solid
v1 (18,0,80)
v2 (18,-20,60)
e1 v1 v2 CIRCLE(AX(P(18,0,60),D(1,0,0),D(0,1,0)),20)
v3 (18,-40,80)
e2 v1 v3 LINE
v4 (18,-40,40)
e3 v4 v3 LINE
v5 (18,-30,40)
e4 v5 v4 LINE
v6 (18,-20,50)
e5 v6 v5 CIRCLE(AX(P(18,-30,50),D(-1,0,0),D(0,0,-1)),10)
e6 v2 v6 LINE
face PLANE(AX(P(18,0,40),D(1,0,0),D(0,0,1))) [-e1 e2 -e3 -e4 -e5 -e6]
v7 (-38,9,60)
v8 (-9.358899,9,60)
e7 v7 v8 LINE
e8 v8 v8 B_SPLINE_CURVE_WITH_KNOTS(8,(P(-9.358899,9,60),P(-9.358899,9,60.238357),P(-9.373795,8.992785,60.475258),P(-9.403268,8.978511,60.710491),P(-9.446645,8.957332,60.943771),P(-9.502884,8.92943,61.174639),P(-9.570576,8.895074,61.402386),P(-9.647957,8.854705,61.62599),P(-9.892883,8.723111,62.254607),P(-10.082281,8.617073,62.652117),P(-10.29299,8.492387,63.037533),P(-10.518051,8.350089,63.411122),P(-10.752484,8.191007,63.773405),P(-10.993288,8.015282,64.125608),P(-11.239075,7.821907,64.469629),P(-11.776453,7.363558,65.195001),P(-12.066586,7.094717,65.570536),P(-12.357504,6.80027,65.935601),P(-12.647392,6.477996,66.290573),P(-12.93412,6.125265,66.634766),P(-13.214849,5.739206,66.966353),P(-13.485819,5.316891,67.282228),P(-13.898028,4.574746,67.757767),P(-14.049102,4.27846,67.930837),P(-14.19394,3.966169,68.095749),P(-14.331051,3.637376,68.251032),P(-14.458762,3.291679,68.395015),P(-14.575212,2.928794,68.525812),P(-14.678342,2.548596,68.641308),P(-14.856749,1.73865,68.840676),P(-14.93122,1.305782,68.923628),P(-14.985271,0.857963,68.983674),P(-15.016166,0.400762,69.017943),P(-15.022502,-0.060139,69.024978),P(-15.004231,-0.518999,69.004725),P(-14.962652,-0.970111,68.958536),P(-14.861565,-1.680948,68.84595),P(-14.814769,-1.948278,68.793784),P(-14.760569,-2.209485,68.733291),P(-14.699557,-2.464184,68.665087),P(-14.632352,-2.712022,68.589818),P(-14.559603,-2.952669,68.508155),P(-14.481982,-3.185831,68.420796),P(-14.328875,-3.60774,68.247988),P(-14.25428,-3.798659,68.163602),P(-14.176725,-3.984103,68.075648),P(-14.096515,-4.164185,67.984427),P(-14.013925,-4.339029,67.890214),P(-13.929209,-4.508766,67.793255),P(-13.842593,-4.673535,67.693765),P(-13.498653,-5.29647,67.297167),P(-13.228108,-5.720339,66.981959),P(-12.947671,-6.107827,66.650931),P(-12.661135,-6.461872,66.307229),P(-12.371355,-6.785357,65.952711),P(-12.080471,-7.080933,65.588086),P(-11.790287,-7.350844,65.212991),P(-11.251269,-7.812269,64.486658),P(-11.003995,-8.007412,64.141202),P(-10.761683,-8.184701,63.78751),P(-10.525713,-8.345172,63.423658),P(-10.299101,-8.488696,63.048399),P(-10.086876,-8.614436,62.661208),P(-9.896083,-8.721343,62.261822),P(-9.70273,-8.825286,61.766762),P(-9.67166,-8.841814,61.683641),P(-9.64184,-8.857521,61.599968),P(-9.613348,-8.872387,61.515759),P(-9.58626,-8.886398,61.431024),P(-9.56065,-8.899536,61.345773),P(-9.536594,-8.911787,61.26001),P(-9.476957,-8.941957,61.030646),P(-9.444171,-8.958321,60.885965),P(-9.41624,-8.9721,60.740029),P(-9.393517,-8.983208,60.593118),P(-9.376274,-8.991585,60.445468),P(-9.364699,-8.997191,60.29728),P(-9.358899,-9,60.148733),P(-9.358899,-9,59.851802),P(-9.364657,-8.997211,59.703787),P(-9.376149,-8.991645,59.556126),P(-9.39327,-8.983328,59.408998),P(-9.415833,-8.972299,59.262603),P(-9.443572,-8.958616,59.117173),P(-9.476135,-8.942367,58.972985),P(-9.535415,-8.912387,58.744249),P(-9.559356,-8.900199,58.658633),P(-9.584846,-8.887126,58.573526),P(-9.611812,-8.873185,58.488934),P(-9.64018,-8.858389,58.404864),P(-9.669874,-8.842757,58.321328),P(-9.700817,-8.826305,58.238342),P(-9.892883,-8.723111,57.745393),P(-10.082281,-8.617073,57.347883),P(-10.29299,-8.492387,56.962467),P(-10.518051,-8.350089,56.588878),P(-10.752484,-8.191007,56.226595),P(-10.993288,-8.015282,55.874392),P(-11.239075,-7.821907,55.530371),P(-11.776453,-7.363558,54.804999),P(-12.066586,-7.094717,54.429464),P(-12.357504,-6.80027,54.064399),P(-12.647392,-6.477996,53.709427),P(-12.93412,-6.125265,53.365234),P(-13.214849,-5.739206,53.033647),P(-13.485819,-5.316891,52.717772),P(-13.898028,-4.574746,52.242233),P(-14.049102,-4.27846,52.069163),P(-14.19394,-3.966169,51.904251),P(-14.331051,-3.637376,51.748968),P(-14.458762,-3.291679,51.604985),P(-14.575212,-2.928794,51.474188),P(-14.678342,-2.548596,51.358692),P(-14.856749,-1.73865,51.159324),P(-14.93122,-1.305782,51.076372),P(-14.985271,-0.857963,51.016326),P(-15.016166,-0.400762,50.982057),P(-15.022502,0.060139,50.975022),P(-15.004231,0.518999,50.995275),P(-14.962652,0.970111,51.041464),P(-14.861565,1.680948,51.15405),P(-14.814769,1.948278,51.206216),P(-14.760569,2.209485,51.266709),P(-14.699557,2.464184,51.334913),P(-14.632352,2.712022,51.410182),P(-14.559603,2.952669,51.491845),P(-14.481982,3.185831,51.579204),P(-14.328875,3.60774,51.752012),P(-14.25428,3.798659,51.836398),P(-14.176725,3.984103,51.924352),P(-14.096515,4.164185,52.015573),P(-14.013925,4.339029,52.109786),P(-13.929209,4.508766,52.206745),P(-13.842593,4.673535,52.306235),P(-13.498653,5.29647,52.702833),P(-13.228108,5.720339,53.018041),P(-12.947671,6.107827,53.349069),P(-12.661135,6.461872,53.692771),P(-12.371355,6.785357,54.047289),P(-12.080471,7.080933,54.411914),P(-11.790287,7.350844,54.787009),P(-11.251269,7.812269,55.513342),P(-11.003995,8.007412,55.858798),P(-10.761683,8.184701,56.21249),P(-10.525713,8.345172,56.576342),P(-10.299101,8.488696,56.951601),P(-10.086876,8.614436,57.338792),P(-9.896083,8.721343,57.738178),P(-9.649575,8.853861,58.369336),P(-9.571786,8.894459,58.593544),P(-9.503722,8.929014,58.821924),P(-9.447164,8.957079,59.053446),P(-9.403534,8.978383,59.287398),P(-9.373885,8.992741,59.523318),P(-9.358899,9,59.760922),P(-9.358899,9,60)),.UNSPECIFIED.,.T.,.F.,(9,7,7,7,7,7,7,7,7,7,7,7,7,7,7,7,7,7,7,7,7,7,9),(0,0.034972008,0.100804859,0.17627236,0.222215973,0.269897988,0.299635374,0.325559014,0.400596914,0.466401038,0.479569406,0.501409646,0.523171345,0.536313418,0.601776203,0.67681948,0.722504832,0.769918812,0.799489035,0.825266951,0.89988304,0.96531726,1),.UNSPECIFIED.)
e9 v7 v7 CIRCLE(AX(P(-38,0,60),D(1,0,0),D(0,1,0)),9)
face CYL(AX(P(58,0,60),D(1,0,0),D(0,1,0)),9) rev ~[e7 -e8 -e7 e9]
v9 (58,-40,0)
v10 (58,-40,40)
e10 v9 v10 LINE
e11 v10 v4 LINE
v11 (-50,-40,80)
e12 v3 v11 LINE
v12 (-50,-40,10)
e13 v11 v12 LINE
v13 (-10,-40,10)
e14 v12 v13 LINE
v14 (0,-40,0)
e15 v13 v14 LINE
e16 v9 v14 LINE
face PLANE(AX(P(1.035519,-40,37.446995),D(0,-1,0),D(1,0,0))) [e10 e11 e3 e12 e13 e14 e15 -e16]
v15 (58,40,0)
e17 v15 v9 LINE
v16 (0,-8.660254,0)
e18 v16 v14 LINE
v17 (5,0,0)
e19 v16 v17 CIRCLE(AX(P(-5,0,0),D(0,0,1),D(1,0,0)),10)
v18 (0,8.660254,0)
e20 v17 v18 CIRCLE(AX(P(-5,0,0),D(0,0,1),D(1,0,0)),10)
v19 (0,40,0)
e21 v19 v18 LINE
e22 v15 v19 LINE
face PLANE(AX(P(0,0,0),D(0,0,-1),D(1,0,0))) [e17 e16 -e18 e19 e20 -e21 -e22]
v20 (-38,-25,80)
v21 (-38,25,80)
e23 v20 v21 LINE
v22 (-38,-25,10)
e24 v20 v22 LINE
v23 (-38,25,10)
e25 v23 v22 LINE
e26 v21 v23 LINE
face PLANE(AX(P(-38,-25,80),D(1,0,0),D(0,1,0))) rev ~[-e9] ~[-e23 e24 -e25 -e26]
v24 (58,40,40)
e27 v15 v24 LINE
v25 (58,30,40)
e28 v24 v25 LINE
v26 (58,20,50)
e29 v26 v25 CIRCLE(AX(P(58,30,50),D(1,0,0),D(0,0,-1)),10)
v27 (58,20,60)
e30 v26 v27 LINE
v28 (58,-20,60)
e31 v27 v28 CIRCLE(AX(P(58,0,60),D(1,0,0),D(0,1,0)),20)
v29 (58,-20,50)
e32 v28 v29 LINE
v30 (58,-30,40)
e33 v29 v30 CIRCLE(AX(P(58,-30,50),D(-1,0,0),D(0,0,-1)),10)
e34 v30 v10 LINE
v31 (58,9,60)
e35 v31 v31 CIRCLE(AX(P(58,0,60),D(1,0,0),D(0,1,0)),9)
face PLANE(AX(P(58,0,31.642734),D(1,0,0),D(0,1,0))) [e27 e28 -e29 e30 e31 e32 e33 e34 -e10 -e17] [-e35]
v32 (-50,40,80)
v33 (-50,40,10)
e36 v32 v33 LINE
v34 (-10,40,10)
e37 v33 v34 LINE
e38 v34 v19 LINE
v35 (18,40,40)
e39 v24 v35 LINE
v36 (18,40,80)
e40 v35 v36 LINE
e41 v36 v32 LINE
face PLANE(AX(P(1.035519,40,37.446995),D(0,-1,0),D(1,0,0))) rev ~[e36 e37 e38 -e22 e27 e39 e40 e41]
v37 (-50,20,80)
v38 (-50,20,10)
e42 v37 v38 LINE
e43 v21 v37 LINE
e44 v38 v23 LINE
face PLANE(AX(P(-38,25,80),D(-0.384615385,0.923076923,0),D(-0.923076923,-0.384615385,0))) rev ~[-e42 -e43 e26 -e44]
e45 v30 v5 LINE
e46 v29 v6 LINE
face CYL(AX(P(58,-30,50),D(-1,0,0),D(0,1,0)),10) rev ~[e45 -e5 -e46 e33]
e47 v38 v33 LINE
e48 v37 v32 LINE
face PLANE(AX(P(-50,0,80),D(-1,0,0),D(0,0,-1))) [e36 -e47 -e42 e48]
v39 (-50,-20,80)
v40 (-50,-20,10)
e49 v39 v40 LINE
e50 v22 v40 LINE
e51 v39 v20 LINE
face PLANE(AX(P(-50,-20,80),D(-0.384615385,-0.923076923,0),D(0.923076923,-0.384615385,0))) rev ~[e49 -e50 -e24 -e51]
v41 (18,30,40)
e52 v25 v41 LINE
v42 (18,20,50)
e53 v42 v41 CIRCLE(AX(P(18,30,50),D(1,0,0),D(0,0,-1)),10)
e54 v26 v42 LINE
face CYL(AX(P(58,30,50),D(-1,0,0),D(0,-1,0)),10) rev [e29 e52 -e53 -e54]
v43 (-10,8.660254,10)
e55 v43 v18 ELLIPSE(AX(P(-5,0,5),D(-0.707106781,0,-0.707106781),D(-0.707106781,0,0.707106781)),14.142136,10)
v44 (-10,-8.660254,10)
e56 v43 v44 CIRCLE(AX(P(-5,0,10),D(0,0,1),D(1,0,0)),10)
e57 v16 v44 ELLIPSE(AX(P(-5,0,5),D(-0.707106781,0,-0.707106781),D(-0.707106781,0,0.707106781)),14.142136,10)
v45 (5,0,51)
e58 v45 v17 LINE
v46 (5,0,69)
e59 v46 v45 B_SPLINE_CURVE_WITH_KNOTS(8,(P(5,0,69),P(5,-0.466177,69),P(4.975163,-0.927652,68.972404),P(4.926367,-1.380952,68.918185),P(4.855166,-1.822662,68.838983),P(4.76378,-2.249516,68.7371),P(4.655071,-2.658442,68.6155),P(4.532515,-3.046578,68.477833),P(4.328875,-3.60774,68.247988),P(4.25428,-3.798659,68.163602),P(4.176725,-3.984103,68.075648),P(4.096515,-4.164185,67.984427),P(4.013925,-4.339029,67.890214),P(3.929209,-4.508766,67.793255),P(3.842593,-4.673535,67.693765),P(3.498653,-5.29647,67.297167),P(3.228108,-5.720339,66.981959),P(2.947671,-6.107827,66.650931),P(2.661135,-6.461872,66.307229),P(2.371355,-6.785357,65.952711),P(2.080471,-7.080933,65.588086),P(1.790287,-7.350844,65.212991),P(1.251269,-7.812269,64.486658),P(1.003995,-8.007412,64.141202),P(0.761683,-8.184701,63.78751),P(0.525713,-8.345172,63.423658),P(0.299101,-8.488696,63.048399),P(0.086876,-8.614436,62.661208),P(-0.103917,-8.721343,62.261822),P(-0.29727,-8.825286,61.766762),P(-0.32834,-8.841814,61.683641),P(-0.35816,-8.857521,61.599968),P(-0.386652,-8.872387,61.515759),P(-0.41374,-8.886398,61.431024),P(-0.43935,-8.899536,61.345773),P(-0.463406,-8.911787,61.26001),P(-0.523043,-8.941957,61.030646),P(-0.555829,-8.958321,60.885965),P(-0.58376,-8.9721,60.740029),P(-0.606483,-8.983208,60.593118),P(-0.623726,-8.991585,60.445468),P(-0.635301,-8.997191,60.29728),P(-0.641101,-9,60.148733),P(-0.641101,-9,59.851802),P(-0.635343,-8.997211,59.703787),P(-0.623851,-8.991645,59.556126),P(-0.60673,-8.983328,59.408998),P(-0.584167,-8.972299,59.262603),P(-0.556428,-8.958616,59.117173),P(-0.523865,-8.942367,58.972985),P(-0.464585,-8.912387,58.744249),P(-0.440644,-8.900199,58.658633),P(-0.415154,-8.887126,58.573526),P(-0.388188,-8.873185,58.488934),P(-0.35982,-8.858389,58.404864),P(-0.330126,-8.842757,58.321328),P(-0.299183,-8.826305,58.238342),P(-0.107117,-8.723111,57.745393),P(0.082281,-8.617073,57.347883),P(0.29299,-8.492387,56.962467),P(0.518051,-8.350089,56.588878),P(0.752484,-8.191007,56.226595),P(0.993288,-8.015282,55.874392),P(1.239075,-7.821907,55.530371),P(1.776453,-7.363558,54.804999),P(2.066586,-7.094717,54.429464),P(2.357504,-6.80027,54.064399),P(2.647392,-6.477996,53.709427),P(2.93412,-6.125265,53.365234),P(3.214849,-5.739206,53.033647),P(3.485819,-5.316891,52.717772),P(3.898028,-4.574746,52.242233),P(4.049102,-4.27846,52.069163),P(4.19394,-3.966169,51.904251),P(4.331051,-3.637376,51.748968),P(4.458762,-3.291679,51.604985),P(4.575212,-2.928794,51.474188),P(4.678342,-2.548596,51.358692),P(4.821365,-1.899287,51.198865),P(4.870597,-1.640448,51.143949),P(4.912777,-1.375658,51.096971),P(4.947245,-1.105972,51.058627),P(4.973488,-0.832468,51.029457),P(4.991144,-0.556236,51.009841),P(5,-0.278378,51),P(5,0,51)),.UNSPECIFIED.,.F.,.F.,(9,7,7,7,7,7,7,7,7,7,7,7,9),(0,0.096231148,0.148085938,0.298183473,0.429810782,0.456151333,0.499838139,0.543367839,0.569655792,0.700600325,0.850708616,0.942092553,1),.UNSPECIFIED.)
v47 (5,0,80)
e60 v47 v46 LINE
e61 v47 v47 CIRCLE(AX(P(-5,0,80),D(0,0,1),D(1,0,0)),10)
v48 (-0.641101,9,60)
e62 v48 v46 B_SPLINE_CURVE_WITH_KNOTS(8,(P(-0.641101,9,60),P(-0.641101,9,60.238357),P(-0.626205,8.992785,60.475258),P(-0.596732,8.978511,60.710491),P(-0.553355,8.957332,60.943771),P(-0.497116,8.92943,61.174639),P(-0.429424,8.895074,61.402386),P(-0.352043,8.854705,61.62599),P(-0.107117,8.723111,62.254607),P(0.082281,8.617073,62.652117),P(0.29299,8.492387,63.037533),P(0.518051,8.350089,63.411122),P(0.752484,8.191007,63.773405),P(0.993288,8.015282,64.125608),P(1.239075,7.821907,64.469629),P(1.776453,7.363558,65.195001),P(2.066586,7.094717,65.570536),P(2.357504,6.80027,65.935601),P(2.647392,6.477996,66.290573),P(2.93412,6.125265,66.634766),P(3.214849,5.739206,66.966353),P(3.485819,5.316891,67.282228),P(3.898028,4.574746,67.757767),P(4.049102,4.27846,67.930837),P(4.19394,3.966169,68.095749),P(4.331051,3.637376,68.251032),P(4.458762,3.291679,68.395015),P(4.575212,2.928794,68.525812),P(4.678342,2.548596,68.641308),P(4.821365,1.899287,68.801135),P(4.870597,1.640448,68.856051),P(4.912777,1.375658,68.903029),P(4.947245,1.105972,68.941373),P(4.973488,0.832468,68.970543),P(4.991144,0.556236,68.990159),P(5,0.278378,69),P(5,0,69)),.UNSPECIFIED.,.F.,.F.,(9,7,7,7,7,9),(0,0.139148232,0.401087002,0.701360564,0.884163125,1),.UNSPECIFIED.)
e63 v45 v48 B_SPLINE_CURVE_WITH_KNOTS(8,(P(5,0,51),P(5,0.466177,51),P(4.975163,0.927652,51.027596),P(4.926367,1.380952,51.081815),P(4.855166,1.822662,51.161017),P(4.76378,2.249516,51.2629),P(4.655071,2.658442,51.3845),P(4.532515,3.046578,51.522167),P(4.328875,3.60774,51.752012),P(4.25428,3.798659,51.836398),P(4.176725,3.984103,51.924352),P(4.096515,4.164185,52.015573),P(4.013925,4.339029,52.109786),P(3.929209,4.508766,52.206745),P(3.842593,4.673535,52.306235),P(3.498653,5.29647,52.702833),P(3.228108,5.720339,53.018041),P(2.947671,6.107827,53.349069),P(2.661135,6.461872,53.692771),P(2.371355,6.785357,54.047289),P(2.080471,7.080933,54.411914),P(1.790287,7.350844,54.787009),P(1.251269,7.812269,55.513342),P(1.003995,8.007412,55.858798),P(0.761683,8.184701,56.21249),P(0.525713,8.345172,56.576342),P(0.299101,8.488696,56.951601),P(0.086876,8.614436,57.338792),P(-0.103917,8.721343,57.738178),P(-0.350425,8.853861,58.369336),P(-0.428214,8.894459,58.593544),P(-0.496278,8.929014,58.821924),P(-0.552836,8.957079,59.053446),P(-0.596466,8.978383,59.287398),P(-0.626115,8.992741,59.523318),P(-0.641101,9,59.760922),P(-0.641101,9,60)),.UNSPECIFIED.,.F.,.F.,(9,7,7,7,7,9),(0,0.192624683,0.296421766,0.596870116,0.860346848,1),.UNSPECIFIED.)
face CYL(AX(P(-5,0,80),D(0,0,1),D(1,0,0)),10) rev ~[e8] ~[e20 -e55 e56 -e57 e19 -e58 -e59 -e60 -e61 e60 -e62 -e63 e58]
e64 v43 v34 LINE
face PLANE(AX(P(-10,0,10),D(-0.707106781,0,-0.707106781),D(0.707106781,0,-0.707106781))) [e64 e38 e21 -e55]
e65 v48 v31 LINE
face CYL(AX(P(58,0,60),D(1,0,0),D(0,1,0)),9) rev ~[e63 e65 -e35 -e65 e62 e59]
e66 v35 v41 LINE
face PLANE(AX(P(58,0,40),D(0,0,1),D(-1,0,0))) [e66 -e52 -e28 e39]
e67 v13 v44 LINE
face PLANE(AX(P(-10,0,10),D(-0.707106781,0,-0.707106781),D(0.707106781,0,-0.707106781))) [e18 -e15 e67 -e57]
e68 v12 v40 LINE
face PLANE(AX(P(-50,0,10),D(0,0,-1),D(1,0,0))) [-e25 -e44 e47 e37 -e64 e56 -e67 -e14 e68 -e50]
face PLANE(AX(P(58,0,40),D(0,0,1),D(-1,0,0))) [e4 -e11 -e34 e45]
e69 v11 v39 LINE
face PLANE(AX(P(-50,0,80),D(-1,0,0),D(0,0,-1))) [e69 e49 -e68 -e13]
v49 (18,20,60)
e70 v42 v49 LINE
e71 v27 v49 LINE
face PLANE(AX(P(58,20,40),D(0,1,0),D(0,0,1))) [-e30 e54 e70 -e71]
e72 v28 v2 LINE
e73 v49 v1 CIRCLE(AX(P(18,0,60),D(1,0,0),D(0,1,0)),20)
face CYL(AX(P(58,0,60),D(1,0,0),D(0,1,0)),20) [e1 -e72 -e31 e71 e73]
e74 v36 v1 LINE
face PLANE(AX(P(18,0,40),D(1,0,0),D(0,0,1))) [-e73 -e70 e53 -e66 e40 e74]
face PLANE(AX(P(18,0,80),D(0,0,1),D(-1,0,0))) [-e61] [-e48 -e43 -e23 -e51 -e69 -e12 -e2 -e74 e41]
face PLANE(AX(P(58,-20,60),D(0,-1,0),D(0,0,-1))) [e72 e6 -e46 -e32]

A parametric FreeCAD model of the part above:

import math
import FreeCAD as App
import Part
import Sketcher

V = App.Vector
Q = App.Units.Quantity


def edges_at(feature, points):
    """Names of the edges that pass closest to the given points."""
    edges = feature.Shape.Edges
    near = lambda p: min(range(len(edges)), key=lambda i: edges[i].distToShape(Part.Vertex(*p))[0])
    return sorted({f"Edge{near(p) + 1}" for p in points})

doc = App.newDocument("Part")
body = doc.addObject("PartDesign::Body", "Body")

# Sketch on XZ plane
sketch1 = body.newObject("Sketcher::SketchObject", "Sketch")
sketch1.AttachmentSupport = (doc.getObject("XZ_Plane"), [""])
sketch1.MapMode = "FlatFace"
sketch1.addGeometry([
    Part.LineSegment(V(-10, 10, 0), V(0, 0, 0)),  # 0
    Part.LineSegment(V(0, 0, 0), V(58, 0, 0)),  # 1
    Part.LineSegment(V(58, 0, 0), V(58, 40, 0)),  # 2
    Part.LineSegment(V(58, 40, 0), V(18, 40, 0)),  # 3
    Part.LineSegment(V(18, 40, 0), V(18, 80, 0)),  # 4
    Part.LineSegment(V(18, 80, 0), V(-50, 80, 0)),  # 5
    Part.LineSegment(V(-50, 80, 0), V(-50, 10, 0)),  # 6
    Part.LineSegment(V(-50, 10, 0), V(-10, 10, 0)),  # 7
], False)
sketch1.addConstraint([
    Sketcher.Constraint("Coincident", 0, 2, 1, 1),
    Sketcher.Constraint("Coincident", 1, 2, 2, 1),
    Sketcher.Constraint("Coincident", 2, 2, 3, 1),
    Sketcher.Constraint("Coincident", 3, 2, 4, 1),
    Sketcher.Constraint("Coincident", 4, 2, 5, 1),
    Sketcher.Constraint("Coincident", 5, 2, 6, 1),
    Sketcher.Constraint("Coincident", 6, 2, 7, 1),
    Sketcher.Constraint("Coincident", 7, 2, 0, 1),
    Sketcher.Constraint("Horizontal", 1),
    Sketcher.Constraint("Vertical", 2),
    Sketcher.Constraint("Horizontal", 3),
    Sketcher.Constraint("Vertical", 4),
    Sketcher.Constraint("Horizontal", 5),
    Sketcher.Constraint("Vertical", 6),
    Sketcher.Constraint("Horizontal", 7),
    Sketcher.Constraint("Coincident", 0, 2, -1, 1),
    Sketcher.Constraint("Equal", 3, 7),
    Sketcher.Constraint("Equal", 7, 2),
    Sketcher.Constraint("Equal", 2, 4),
    Sketcher.Constraint("DistanceX", 1, 1, 1, 2, Q("58 mm")),
    Sketcher.Constraint("DistanceX", 3, 2, 3, 1, Q("40 mm")),
    Sketcher.Constraint("DistanceX", 5, 2, 5, 1, Q("68 mm")),
    Sketcher.Constraint("DistanceY", 6, 2, 6, 1, Q("70 mm")),
])
pad1 = body.newObject("PartDesign::Pad", "Pad")
pad1.Profile = sketch1
pad1.Length = 80
pad1.Midplane = True

# Sketch on YZ plane
sketch2 = body.newObject("Sketcher::SketchObject", "Sketch001")
sketch2.AttachmentSupport = (doc.getObject("YZ_Plane"), [""])
sketch2.MapMode = "FlatFace"
sketch2.AttachmentOffset = App.Placement(V(0, 0, 58), App.Rotation())
sketch2.addGeometry([
    Part.LineSegment(V(20, 40, 0), V(20, 60, 0)),  # 0
    Part.ArcOfCircle(Part.Circle(V(0, 60, 0), V(0, 0, 1), 20), math.radians(0), math.radians(180)),  # 1
    Part.LineSegment(V(-20, 60, 0), V(-20, 40, 0)),  # 2
    Part.LineSegment(V(-20, 40, 0), V(-40, 40, 0)),  # 3
    Part.LineSegment(V(-40, 40, 0), V(-40, 0, 0)),  # 4
    Part.LineSegment(V(-40, 0, 0), V(40, 0, 0)),  # 5
    Part.LineSegment(V(40, 0, 0), V(40, 40, 0)),  # 6
    Part.LineSegment(V(40, 40, 0), V(20, 40, 0)),  # 7
    Part.Circle(V(0, 60, 0), V(0, 0, 1), 9),  # 8
], False)
sketch2.addConstraint([
    Sketcher.Constraint("Tangent", 0, 2, 1, 1),
    Sketcher.Constraint("Tangent", 1, 2, 2, 1),
    Sketcher.Constraint("Coincident", 2, 2, 3, 1),
    Sketcher.Constraint("Coincident", 3, 2, 4, 1),
    Sketcher.Constraint("Coincident", 4, 2, 5, 1),
    Sketcher.Constraint("Coincident", 5, 2, 6, 1),
    Sketcher.Constraint("Coincident", 6, 2, 7, 1),
    Sketcher.Constraint("Coincident", 7, 2, 0, 1),
    Sketcher.Constraint("Vertical", 0),
    Sketcher.Constraint("Vertical", 2),
    Sketcher.Constraint("Horizontal", 3),
    Sketcher.Constraint("Vertical", 4),
    Sketcher.Constraint("Horizontal", 5),
    Sketcher.Constraint("Vertical", 6),
    Sketcher.Constraint("Horizontal", 7),
    Sketcher.Constraint("Coincident", 8, 3, 1, 3),
    Sketcher.Constraint("Symmetric", 4, 2, 5, 2, -1, 1),
    Sketcher.Constraint("Symmetric", 2, 2, 7, 2, -2),
    Sketcher.Constraint("Equal", 7, 0),
    Sketcher.Constraint("Diameter", 8, Q("18 mm")),
    Sketcher.Constraint("Radius", 1, Q("20 mm")),
    Sketcher.Constraint("DistanceX", 3, 2, 3, 1, Q("20 mm")),
    Sketcher.Constraint("DistanceY", 4, 2, 4, 1, Q("40 mm")),
])
pad2 = body.newObject("PartDesign::Pad", "Pad001")
pad2.Profile = sketch2
pad2.Length = 40
pad2.Reversed = True
body2 = doc.addObject("PartDesign::Body", "Body001")

# Sketch on YZ plane
sketch3 = body2.newObject("Sketcher::SketchObject", "Sketch002")
sketch3.AttachmentSupport = (doc.getObject("YZ_Plane001"), [""])
sketch3.MapMode = "FlatFace"
sketch3.AttachmentOffset = App.Placement(V(0, 0, 18), App.Rotation())
sketch3.addGeometry(Part.Circle(V(0, 60, 0), V(0, 0, 1), 9), False)
sketch3.addConstraint([
    Sketcher.Constraint("PointOnObject", 0, 3, -2),
    Sketcher.Constraint("Diameter", 0, Q("18 mm")),
    Sketcher.Constraint("DistanceY", -1, 1, 0, 3, Q("60 mm")),
])
pad3 = body2.newObject("PartDesign::Pad", "Pad002")
pad3.Profile = sketch3
pad3.Length = 132.5
pad3.Reversed = True
body3 = doc.addObject("PartDesign::Body", "Body002")

# Sketch on XY plane
sketch4 = body3.newObject("Sketcher::SketchObject", "Sketch003")
sketch4.AttachmentSupport = (doc.getObject("XY_Plane002"), [""])
sketch4.MapMode = "FlatFace"
sketch4.AttachmentOffset = App.Placement(V(0, 0, 80), App.Rotation())
sketch4.addGeometry([
    Part.LineSegment(V(-50, 20, 0), V(-50, -20, 0)),
    Part.LineSegment(V(-50, -20, 0), V(-38, -25, 0)),
    Part.LineSegment(V(-38, -25, 0), V(-38, 25, 0)),
    Part.LineSegment(V(-38, 25, 0), V(-50, 20, 0)),
], False)
sketch4.addConstraint([
    Sketcher.Constraint("Coincident", 0, 2, 1, 1),
    Sketcher.Constraint("Coincident", 1, 2, 2, 1),
    Sketcher.Constraint("Coincident", 2, 2, 3, 1),
    Sketcher.Constraint("Coincident", 3, 2, 0, 1),
    Sketcher.Constraint("Vertical", 0),
    Sketcher.Constraint("Vertical", 2),
    Sketcher.Constraint("Equal", 1, 3),
    Sketcher.Constraint("DistanceY", 0, 2, 0, 1, Q("40 mm")),
    Sketcher.Constraint("DistanceY", 2, 1, 2, 2, Q("50 mm")),
    Sketcher.Constraint("Distance", 1, Q("13 mm")),
    Sketcher.Constraint("DistanceX", 0, 2, -1, 1, Q("50 mm")),
    Sketcher.Constraint("DistanceY", 0, 2, -1, 1, Q("20 mm")),
])
pad4 = body3.newObject("PartDesign::Pad", "Pad003")
pad4.Profile = sketch4
pad4.Length = 100
pad4.Reversed = True
body4 = doc.addObject("PartDesign::Body", "Body003")

# Sketch on XY plane
sketch5 = body4.newObject("Sketcher::SketchObject", "Sketch004")
sketch5.AttachmentSupport = (doc.getObject("XY_Plane003"), [""])
sketch5.MapMode = "FlatFace"
sketch5.AttachmentOffset = App.Placement(V(0, 0, 80), App.Rotation())
sketch5.addGeometry(Part.Circle(V(-5, 0, 0), V(0, 0, 1), 10), False)
sketch5.addConstraint([
    Sketcher.Constraint("PointOnObject", 0, 3, -1),
    Sketcher.Constraint("Diameter", 0, Q("20 mm")),
    Sketcher.Constraint("DistanceX", 0, 3, -1, 1, Q("5 mm")),
])
pad5 = body4.newObject("PartDesign::Pad", "Pad004")
pad5.Profile = sketch5
pad5.Length = 100
pad5.Reversed = True
doc.recompute()

boolean = body.newObject("PartDesign::Boolean", "Boolean")
boolean.Type = "Cut"
boolean.addObjects([body2])
doc.recompute()

boolean2 = body.newObject("PartDesign::Boolean", "Boolean001")
boolean2.Type = "Cut"
boolean2.addObjects([body3])
doc.recompute()

boolean3 = body.newObject("PartDesign::Boolean", "Boolean002")
boolean3.Type = "Cut"
boolean3.addObjects([body4])
doc.recompute()

fillet = body.newObject("PartDesign::Fillet", "Fillet")
fillet.Base = (boolean3, edges_at(boolean3, [(38, -20, 40), (38, 20, 40)]))
fillet.Radius = 10

doc.recompute()
